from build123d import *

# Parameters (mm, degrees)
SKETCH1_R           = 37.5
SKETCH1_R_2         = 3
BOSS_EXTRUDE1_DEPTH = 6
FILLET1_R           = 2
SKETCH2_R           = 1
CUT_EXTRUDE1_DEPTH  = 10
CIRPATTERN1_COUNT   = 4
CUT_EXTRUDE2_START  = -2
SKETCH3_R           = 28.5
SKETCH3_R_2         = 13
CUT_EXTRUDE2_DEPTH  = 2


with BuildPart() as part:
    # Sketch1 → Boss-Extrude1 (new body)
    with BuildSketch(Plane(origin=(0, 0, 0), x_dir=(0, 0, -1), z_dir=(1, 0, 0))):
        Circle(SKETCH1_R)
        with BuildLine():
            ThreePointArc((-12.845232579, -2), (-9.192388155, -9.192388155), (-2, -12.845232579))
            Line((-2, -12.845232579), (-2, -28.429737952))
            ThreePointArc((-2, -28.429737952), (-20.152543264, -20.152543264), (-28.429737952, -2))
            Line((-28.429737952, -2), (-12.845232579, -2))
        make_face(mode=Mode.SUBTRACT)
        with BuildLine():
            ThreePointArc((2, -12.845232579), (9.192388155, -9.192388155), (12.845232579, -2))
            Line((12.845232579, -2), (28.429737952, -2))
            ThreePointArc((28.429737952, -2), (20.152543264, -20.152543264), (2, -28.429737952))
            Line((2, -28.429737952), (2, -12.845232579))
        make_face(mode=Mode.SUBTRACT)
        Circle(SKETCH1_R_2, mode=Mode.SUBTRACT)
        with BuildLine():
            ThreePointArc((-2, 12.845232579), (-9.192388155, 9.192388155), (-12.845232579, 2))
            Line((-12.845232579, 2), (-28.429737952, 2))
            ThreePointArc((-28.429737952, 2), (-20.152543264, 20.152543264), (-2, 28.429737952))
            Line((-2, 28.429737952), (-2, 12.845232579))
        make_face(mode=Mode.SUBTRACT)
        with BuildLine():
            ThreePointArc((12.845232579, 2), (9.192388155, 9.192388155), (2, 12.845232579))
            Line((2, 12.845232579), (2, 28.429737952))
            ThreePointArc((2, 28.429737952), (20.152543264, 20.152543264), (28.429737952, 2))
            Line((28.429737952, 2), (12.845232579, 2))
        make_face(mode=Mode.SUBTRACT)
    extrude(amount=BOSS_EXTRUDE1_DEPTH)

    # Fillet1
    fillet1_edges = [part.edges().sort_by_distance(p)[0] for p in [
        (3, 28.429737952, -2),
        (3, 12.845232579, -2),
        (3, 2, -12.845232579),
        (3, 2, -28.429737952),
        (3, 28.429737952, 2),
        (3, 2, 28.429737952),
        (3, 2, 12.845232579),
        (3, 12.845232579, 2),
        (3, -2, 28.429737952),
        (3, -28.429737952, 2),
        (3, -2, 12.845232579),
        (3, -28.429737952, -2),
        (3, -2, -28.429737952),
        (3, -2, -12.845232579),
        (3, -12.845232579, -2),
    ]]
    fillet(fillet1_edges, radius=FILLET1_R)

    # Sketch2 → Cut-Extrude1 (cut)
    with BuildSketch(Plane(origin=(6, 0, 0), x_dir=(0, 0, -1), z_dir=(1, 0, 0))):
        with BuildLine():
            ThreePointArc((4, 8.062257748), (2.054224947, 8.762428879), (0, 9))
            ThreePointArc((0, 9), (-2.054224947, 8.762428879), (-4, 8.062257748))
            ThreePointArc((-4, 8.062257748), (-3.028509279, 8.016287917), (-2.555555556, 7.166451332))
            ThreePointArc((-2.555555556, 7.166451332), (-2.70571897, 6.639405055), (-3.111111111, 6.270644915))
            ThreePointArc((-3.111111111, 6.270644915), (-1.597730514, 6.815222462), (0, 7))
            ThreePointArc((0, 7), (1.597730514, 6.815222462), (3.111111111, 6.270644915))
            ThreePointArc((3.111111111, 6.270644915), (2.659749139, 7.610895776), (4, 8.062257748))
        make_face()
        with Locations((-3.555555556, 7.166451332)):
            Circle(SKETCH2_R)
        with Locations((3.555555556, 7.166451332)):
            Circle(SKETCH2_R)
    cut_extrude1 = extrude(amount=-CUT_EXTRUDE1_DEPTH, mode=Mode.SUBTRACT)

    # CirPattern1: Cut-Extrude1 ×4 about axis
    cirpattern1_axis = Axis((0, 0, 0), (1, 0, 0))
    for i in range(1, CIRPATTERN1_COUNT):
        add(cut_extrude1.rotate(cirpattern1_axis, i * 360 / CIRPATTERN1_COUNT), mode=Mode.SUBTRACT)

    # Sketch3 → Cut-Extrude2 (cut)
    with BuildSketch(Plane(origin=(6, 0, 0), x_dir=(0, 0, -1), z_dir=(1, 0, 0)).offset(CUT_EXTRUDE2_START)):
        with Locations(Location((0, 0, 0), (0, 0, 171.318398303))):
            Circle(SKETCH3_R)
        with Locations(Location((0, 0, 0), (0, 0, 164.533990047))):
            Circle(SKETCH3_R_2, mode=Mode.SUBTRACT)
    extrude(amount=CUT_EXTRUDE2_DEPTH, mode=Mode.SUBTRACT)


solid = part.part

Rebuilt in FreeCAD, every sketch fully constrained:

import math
import FreeCAD as App
import Part
import Sketcher
Q = App.Units.Quantity


def edges_at(feature, points):
    """Names of the edges that pass closest to the given points."""
    edges = feature.Shape.Edges
    near = lambda p: min(range(len(edges)), key=lambda i: edges[i].distToShape(Part.Vertex(*p))[0])
    return sorted({f"Edge{near(p) + 1}" for p in points})

doc = App.newDocument("Part")
params = doc.addObject("Spreadsheet::Sheet", "Params")
for row, (alias, value) in enumerate([
    ("sketch1_diameter", "75 mm"),
    ("sketch1_diameter2", "6 mm"),
    ("sketch1_radius", "13 mm"),
    ("sketch1_radius2", "28.5 mm"),
    ("pad1_length", "6 mm"),
    ("fillet_radius", "2 mm"),
    ("sketch2_radius", "9 mm"),
    ("sketch2_radius2", "1 mm"),
    ("pocket1_length", "10 mm"),
    ("sketch3_diameter", "57 mm"),
    ("sketch3_diameter2", "26 mm"),
    ("pocket2_length", "2 mm"),
], start=1):
    params.set(f"A{row}", alias)
    params.set(f"B{row}", "=" + value)
    params.setAlias(f"B{row}", alias)

body = doc.addObject("PartDesign::Body", "Body")

sketch1 = body.newObject("Sketcher::SketchObject", "Sketch")
sketch1.AttachmentSupport = (doc.getObject("YZ_Plane"), [""])
sketch1.MapMode = "FlatFace"
sketch1.addGeometry([
    Part.Circle(App.Vector(0, 0, 0), App.Vector(0, 0, 1), 37.5),
    Part.LineSegment(App.Vector(-2, 28.4, 0), App.Vector(-2, 12.8, 0)),
    Part.ArcOfCircle(Part.Circle(App.Vector(0, 0, 0), App.Vector(0, 0, 1), 13), math.radians(99), math.radians(171)),
    Part.LineSegment(App.Vector(-12.8, 2, 0), App.Vector(-28.4, 2, 0)),
    Part.ArcOfCircle(Part.Circle(App.Vector(0, 0, 0), App.Vector(0, 0, 1), 28.5), math.radians(94), math.radians(176)),
    Part.LineSegment(App.Vector(-28.4, -2, 0), App.Vector(-12.8, -2, 0)),
    Part.ArcOfCircle(Part.Circle(App.Vector(0, 0, 0), App.Vector(0, 0, 1), 13), math.radians(-171), math.radians(-99)),
    Part.LineSegment(App.Vector(-2, -12.8, 0), App.Vector(-2, -28.4, 0)),
    Part.ArcOfCircle(Part.Circle(App.Vector(0, 0, 0), App.Vector(0, 0, 1), 28.5), math.radians(-176), math.radians(-94)),
    Part.LineSegment(App.Vector(28.4, 2, 0), App.Vector(12.8, 2, 0)),
    Part.ArcOfCircle(Part.Circle(App.Vector(0, 0, 0), App.Vector(0, 0, 1), 13), math.radians(9), math.radians(81)),
    Part.LineSegment(App.Vector(2, 12.8, 0), App.Vector(2, 28.4, 0)),
    Part.ArcOfCircle(Part.Circle(App.Vector(0, 0, 0), App.Vector(0, 0, 1), 28.5), math.radians(4), math.radians(86)),
    Part.Circle(App.Vector(0, 0, 0), App.Vector(0, 0, 1), 3),
    Part.LineSegment(App.Vector(2, -28.4, 0), App.Vector(2, -12.8, 0)),
    Part.ArcOfCircle(Part.Circle(App.Vector(0, 0, 0), App.Vector(0, 0, 1), 13), math.radians(-81), math.radians(-9)),
    Part.LineSegment(App.Vector(12.8, -2, 0), App.Vector(28.4, -2, 0)),
    Part.ArcOfCircle(Part.Circle(App.Vector(0, 0, 0), App.Vector(0, 0, 1), 28.5), math.radians(-86), math.radians(-4)),
], False)
sketch1.addConstraint([
    Sketcher.Constraint("Coincident", 1, 2, 2, 1),
    Sketcher.Constraint("Coincident", 2, 2, 3, 1),
    Sketcher.Constraint("Coincident", 3, 2, 4, 2),
    Sketcher.Constraint("Coincident", 4, 1, 1, 1),
    Sketcher.Constraint("Coincident", 5, 2, 6, 1),
    Sketcher.Constraint("Coincident", 6, 2, 7, 1),
    Sketcher.Constraint("Coincident", 7, 2, 8, 2),
    Sketcher.Constraint("Coincident", 8, 1, 5, 1),
    Sketcher.Constraint("Coincident", 9, 2, 10, 1),
    Sketcher.Constraint("Coincident", 10, 2, 11, 1),
    Sketcher.Constraint("Coincident", 11, 2, 12, 2),
    Sketcher.Constraint("Coincident", 12, 1, 9, 1),
    Sketcher.Constraint("Coincident", 14, 2, 15, 1),
    Sketcher.Constraint("Coincident", 15, 2, 16, 1),
    Sketcher.Constraint("Coincident", 16, 2, 17, 2),
    Sketcher.Constraint("Coincident", 17, 1, 14, 1),
    Sketcher.Constraint("Vertical", 1),
    Sketcher.Constraint("Horizontal", 3),
    Sketcher.Constraint("Horizontal", 5),
    Sketcher.Constraint("Vertical", 7),
    Sketcher.Constraint("Horizontal", 9),
    Sketcher.Constraint("Vertical", 11),
    Sketcher.Constraint("Vertical", 14),
    Sketcher.Constraint("Horizontal", 16),
    Sketcher.Constraint("Coincident", 0, 3, -1, 1),
    Sketcher.Constraint("Coincident", 2, 3, -1, 1),
    Sketcher.Constraint("Coincident", 4, 3, -1, 1),
    Sketcher.Constraint("Coincident", 6, 3, -1, 1),
    Sketcher.Constraint("Coincident", 8, 3, -1, 1),
    Sketcher.Constraint("Coincident", 10, 3, -1, 1),
    Sketcher.Constraint("Coincident", 12, 3, -1, 1),
    Sketcher.Constraint("Coincident", 13, 3, -1, 1),
    Sketcher.Constraint("Coincident", 15, 3, -1, 1),
    Sketcher.Constraint("Coincident", 17, 3, -1, 1),
    Sketcher.Constraint("Equal", 2, 6),
    Sketcher.Constraint("Equal", 4, 8),
    Sketcher.Constraint("Equal", 6, 10),
    Sketcher.Constraint("Equal", 8, 12),
    Sketcher.Constraint("Equal", 10, 15),
    Sketcher.Constraint("Equal", 12, 17),
    Sketcher.Constraint("Horizontal", 3, 2, 9, 2),
    Sketcher.Constraint("Horizontal", 1, 2, 10, 2),
    Sketcher.Constraint("Horizontal", 6, 2, 14, 2),
    Sketcher.Constraint("Horizontal", 8, 1, 15, 2),
    Sketcher.Constraint("Vertical", 2, 2, 5, 2),
    Sketcher.Constraint("Vertical", 4, 1, 6, 2),
    Sketcher.Constraint("Equal", 16, 1),
    Sketcher.Constraint("Diameter", 0, Q("75 mm")),
    Sketcher.Constraint("Diameter", 13, Q("6 mm")),
    Sketcher.Constraint("Radius", 2, Q("13 mm")),
    Sketcher.Constraint("Radius", 4, Q("28.5 mm")),
    Sketcher.Constraint("DistanceX", 1, 2, -1, 1, Q("2 mm")),
])
sketch1.setExpression("Constraints[47]", "Params.sketch1_diameter")
sketch1.setExpression("Constraints[48]", "Params.sketch1_diameter2")
sketch1.setExpression("Constraints[49]", "Params.sketch1_radius")
sketch1.setExpression("Constraints[50]", "Params.sketch1_radius2")
pad1 = body.newObject("PartDesign::Pad", "Pad")
pad1.Profile = sketch1
pad1.setExpression("Length", "Params.pad1_length")
doc.recompute()

fillet = body.newObject("PartDesign::Fillet", "Fillet")
fillet.Base = (pad1, edges_at(pad1, [
    (3, 28.43, -2),
    (3, 12.845, -2),
    (3, 2, -12.845),
    (3, 2, -28.43),
    (3, 28.43, 2),
    (3, 2, 28.43),
    (3, 2, 12.845),
    (3, 12.845, 2),
    (3, -2, 28.43),
    (3, -28.43, 2),
    (3, -2, 12.845),
    (3, -28.43, -2),
    (3, -2, -28.43),
    (3, -2, -12.845),
    (3, -12.845, -2),
]))
fillet.setExpression("Radius", "Params.fillet_radius")

sketch2 = body.newObject("Sketcher::SketchObject", "Sketch001")
sketch2.AttachmentSupport = (doc.getObject("YZ_Plane"), [""])
sketch2.MapMode = "FlatFace"
sketch2.AttachmentOffset = App.Placement(App.Vector(0, 0, 6), App.Rotation())
sketch2.addGeometry([
    Part.ArcOfCircle(Part.Circle(App.Vector(0, 0, 0), App.Vector(0, 0, 1), 9), math.radians(-26), math.radians(0)),
    Part.ArcOfCircle(Part.Circle(App.Vector(0, 0, 0), App.Vector(0, 0, 1), 9), math.radians(0), math.radians(26)),
    Part.ArcOfCircle(Part.Circle(App.Vector(7.2, 3.6, 0), App.Vector(0, 0, 1), 1), math.radians(26), math.radians(206)),
    Part.ArcOfCircle(Part.Circle(App.Vector(0, 0, 0), App.Vector(0, 0, 1), 7), math.radians(0), math.radians(26)),
    Part.ArcOfCircle(Part.Circle(App.Vector(0, 0, 0), App.Vector(0, 0, 1), 7), math.radians(-26), math.radians(0)),
    Part.ArcOfCircle(Part.Circle(App.Vector(7.2, -3.6, 0), App.Vector(0, 0, 1), 1), math.radians(154), math.radians(334)),
], False)
sketch2.addConstraint([
    Sketcher.Constraint("Tangent", 0, 2, 1, 1),
    Sketcher.Constraint("Tangent", 1, 2, 2, 1),
    Sketcher.Constraint("Tangent", 2, 2, 3, 2),
    Sketcher.Constraint("Tangent", 3, 1, 4, 2),
    Sketcher.Constraint("Tangent", 4, 1, 5, 1),
    Sketcher.Constraint("Tangent", 5, 2, 0, 1),
    Sketcher.Constraint("Coincident", 0, 3, -1, 1),
    Sketcher.Constraint("Coincident", 3, 3, -1, 1),
    Sketcher.Constraint("Equal", 0, 1),
    Sketcher.Constraint("Equal", 3, 4),
    Sketcher.Constraint("PointOnObject", 0, 2, -1),
    Sketcher.Constraint("PointOnObject", 3, 1, -1),
    Sketcher.Constraint("Vertical", 2, 3, 5, 3),
    Sketcher.Constraint("Radius", 0, Q("9 mm")),
    Sketcher.Constraint("Radius", 2, Q("1 mm")),
    Sketcher.Constraint("DistanceY", -1, 1, 1, 2, Q("4 mm")),
])
sketch2.setExpression("Constraints[13]", "Params.sketch2_radius")
sketch2.setExpression("Constraints[14]", "Params.sketch2_radius2")
pocket1 = body.newObject("PartDesign::Pocket", "Pocket")
pocket1.Profile = sketch2
pocket1.setExpression("Length", "Params.pocket1_length")
doc.recompute()

polarpattern = body.newObject("PartDesign::PolarPattern", "PolarPattern")
polarpattern.Originals = [pocket1]
polarpattern.Axis = (doc.getObject("X_Axis"), [""])
polarpattern.Angle = 360
polarpattern.Occurrences = 4
body.Tip = polarpattern

sketch3 = body.newObject("Sketcher::SketchObject", "Sketch002")
sketch3.AttachmentSupport = (doc.getObject("YZ_Plane"), [""])
sketch3.MapMode = "FlatFace"
sketch3.AttachmentOffset = App.Placement(App.Vector(0, 0, 4), App.Rotation())
sketch3.addGeometry([
    Part.Circle(App.Vector(0, 0, 0), App.Vector(0, 0, 1), 28),
    Part.Circle(App.Vector(0, 0, 0), App.Vector(0, 0, 1), 13),
], False)
sketch3.addConstraint([
    Sketcher.Constraint("Coincident", 0, 3, -1, 1),
    Sketcher.Constraint("Coincident", 1, 3, -1, 1),
    Sketcher.Constraint("Diameter", 0, Q("57 mm")),
    Sketcher.Constraint("Diameter", 1, Q("26 mm")),
])
sketch3.setExpression("Constraints[2]", "Params.sketch3_diameter")
sketch3.setExpression("Constraints[3]", "Params.sketch3_diameter2")
pocket2 = body.newObject("PartDesign::Pocket", "Pocket001")
pocket2.Profile = sketch3
pocket2.setExpression("Length", "Params.pocket2_length")
pocket2.Reversed = True

doc.recompute()
